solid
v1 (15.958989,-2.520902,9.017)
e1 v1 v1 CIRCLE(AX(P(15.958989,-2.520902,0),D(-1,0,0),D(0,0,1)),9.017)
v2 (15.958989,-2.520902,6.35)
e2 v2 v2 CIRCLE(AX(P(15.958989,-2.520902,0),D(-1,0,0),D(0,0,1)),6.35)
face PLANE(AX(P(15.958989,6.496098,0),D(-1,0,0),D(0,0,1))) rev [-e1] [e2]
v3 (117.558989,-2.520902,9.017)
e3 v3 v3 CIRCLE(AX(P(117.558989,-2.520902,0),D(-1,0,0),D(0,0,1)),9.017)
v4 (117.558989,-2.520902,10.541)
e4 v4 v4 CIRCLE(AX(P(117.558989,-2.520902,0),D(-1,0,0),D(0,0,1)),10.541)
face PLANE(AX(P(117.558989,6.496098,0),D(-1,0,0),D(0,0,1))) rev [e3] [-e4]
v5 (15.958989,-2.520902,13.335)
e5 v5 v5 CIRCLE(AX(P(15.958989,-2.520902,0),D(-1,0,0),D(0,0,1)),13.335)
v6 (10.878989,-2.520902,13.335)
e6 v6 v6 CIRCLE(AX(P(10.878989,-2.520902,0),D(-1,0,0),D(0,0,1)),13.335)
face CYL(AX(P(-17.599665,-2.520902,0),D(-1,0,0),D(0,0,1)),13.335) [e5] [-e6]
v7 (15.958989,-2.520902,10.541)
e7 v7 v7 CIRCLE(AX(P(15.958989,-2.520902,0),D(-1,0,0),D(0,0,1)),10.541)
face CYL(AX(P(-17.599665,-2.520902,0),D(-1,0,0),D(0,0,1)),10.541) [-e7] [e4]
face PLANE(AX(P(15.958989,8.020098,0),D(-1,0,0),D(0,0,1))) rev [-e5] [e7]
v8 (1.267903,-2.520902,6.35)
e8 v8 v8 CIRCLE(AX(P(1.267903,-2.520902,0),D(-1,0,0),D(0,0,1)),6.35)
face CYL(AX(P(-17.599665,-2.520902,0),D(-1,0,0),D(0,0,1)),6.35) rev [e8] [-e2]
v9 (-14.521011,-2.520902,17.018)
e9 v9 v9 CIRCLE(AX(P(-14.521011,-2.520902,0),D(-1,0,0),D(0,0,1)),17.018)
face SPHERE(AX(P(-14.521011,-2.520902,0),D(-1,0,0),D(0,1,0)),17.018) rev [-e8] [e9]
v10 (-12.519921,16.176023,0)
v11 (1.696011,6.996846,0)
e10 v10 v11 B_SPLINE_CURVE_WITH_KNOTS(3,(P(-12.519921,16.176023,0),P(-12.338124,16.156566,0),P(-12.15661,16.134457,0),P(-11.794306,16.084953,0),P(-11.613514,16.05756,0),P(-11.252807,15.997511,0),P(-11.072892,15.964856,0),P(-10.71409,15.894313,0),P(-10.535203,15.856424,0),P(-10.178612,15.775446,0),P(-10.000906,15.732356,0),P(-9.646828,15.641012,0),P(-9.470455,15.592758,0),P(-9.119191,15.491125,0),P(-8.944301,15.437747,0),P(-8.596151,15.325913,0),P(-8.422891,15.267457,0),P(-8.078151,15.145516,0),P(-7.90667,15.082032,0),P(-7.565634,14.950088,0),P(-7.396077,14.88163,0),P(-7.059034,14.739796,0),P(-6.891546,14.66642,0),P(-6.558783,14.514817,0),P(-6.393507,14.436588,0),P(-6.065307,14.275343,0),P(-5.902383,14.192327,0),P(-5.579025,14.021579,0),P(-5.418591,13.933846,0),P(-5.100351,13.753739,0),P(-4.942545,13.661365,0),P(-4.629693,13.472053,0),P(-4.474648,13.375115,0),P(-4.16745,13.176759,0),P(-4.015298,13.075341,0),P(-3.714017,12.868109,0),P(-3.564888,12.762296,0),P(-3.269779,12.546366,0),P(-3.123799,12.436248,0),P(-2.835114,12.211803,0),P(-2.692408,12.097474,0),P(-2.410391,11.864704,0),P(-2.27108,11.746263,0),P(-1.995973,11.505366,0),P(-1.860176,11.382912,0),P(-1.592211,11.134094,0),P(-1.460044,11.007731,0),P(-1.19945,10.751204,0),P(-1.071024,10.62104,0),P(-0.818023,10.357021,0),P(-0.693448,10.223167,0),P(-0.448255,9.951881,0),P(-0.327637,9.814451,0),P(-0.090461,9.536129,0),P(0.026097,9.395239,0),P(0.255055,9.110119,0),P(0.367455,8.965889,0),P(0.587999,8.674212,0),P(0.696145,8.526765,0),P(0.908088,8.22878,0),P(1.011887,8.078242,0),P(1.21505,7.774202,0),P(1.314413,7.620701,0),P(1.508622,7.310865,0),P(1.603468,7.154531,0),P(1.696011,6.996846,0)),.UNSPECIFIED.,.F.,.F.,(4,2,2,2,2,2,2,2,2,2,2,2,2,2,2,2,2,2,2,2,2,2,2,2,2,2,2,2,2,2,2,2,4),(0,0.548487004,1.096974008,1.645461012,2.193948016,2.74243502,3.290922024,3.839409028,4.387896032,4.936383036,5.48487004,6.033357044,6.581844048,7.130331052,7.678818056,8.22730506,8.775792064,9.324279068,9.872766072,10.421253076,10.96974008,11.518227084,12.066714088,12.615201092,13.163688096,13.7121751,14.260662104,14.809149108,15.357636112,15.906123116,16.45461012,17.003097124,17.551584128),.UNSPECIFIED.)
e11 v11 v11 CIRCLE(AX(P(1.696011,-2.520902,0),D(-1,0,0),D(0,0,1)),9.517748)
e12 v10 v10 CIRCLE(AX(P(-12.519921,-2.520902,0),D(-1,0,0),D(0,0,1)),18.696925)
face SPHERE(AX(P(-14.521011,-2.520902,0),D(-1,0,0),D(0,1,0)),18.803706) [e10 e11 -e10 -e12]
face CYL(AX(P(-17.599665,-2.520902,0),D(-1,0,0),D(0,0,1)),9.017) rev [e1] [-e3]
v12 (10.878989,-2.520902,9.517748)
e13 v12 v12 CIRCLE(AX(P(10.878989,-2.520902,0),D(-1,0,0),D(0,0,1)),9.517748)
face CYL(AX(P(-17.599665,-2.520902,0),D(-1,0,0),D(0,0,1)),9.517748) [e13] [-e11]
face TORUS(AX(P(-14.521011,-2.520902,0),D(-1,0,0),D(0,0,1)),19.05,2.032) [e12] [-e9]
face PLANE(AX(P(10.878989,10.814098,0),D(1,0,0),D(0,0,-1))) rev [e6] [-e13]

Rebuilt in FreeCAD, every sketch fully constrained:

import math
import FreeCAD as App
import Part
import Sketcher

V = App.Vector
Q = App.Units.Quantity

doc = App.newDocument("Part")
params = doc.addObject("Spreadsheet::Sheet", "Params")
for row, (alias, value) in enumerate([
    ("sketch1_width", "4 in"),
    ("sketch1_radius", "0.08 in"),
    ("sketch1_radius2", "0.67 in"),
    ("sketch1_width2", "0.2 in"),
    ("sketch1_width3", "5.2 in"),
    ("revolution_angle", "360 deg"),
], start=1):
    params.set(f"A{row}", alias)
    params.set(f"B{row}", "=" + value)
    params.setAlias(f"B{row}", alias)

body = doc.addObject("PartDesign::Body", "Body")

sketch1 = body.newObject("Sketcher::SketchObject", "Sketch")
sketch1.AttachmentSupport = (doc.getObject("XY_Plane"), [""])
sketch1.MapMode = "FlatFace"
sketch1.addGeometry([
    Part.LineSegment(V(15.958989, 6.496098, 0), V(117.558989, 6.496098, 0)),
    Part.LineSegment(V(117.558989, 6.496098, 0), V(117.558989, 8.020098, 0)),
    Part.LineSegment(V(117.558989, 8.020098, 0), V(15.958989, 8.020098, 0)),
    Part.LineSegment(V(15.958989, 8.020098, 0), V(15.958989, 10.814098, 0)),
    Part.LineSegment(V(15.958989, 10.814098, 0), V(10.878989, 10.814098, 0)),
    Part.LineSegment(V(10.878989, 10.814098, 0), V(10.878989, 6.996846, 0)),
    Part.LineSegment(V(10.878989, 6.996846, 0), V(1.696011, 6.996846, 0)),
    Part.ArcOfCircle(Part.Circle(V(-14.521011, -2.520902, 0), V(0, 0, 1), 18.803706), math.radians(30.408614), math.radians(83.891016)),
    Part.ArcOfCircle(Part.Circle(V(-14.521011, 16.529098, 0), V(0, 0, 1), 2.032), math.radians(-10.006362), math.radians(270)),
    Part.ArcOfCircle(Part.Circle(V(-14.521011, -2.520902, 0), V(0, 0, 1), 17.018), math.radians(21.90905), math.radians(90)),
    Part.LineSegment(V(1.267903, 3.829098, 0), V(15.958989, 3.829098, 0)),
    Part.LineSegment(V(15.958989, 3.829098, 0), V(15.958989, 6.496098, 0)),
], False)
sketch1.addGeometry(Part.LineSegment(V(-14.521011, -2.520902, 0), V(117.558989, -2.520902, 0)), True)
sketch1.addConstraint([
    Sketcher.Constraint("Coincident", 0, 2, 1, 1),
    Sketcher.Constraint("Coincident", 1, 2, 2, 1),
    Sketcher.Constraint("Coincident", 2, 2, 3, 1),
    Sketcher.Constraint("Coincident", 3, 2, 4, 1),
    Sketcher.Constraint("Coincident", 4, 2, 5, 1),
    Sketcher.Constraint("Coincident", 5, 2, 6, 1),
    Sketcher.Constraint("Coincident", 6, 2, 7, 1),
    Sketcher.Constraint("Coincident", 7, 2, 8, 1),
    Sketcher.Constraint("Tangent", 8, 2, 9, 2),
    Sketcher.Constraint("Coincident", 9, 1, 10, 1),
    Sketcher.Constraint("Coincident", 10, 2, 11, 1),
    Sketcher.Constraint("Coincident", 11, 2, 0, 1),
    Sketcher.Constraint("Horizontal", 0),
    Sketcher.Constraint("Vertical", 1),
    Sketcher.Constraint("Horizontal", 2),
    Sketcher.Constraint("Vertical", 3),
    Sketcher.Constraint("Horizontal", 4),
    Sketcher.Constraint("Vertical", 5),
    Sketcher.Constraint("Horizontal", 6),
    Sketcher.Constraint("Horizontal", 10),
    Sketcher.Constraint("Vertical", 11),
    Sketcher.Constraint("Horizontal", 12),
    Sketcher.Constraint("Coincident", 9, 3, 7, 3),
    Sketcher.Constraint("Coincident", 12, 1, 7, 3),
    Sketcher.Constraint("Vertical", 7, 3, 8, 3),
    Sketcher.Constraint("Vertical", 3, 2, 10, 2),
    Sketcher.Constraint("Vertical", 1, 2, 12, 2),
    Sketcher.Constraint("DistanceX", 0, 1, 0, 2, Q("4 in")),
    Sketcher.Constraint("Radius", 8, Q("0.08 in")),
    Sketcher.Constraint("Radius", 9, Q("0.67 in")),
    Sketcher.Constraint("DistanceX", 4, 2, 4, 1, Q("0.2 in")),
    Sketcher.Constraint("DistanceX", 12, 1, 12, 2, Q("5.2 in")),
    Sketcher.Constraint("DistanceY", 1, 1, 1, 2, Q("0.06 in")),
    Sketcher.Constraint("DistanceY", 3, 1, 3, 2, Q("0.11 in")),
    Sketcher.Constraint("DistanceY", 11, 1, 11, 2, Q("0.105 in")),
    Sketcher.Constraint("DistanceY", 12, 1, 9, 1, Q("0.25 in")),
    Sketcher.Constraint("Radius", 7, 18.803706),
    Sketcher.Constraint("DistanceY", 5, 2, 5, 1, 3.817252),
    Sketcher.Constraint("DistanceY", 7, 3, -1, 1, 2.520902),
    Sketcher.Constraint("DistanceX", 7, 3, -1, 1, 14.521011),
])
sketch1.setExpression("Constraints[27]", "Params.sketch1_width")
sketch1.setExpression("Constraints[28]", "Params.sketch1_radius")
sketch1.setExpression("Constraints[29]", "Params.sketch1_radius2")
sketch1.setExpression("Constraints[30]", "Params.sketch1_width2")
sketch1.setExpression("Constraints[31]", "Params.sketch1_width3")
revolution = body.newObject("PartDesign::Revolution", "Revolution")
revolution.Profile = sketch1
revolution.ReferenceAxis = (sketch1, ["Axis0"])
revolution.setExpression("Angle", "Params.revolution_angle")

doc.recompute()
